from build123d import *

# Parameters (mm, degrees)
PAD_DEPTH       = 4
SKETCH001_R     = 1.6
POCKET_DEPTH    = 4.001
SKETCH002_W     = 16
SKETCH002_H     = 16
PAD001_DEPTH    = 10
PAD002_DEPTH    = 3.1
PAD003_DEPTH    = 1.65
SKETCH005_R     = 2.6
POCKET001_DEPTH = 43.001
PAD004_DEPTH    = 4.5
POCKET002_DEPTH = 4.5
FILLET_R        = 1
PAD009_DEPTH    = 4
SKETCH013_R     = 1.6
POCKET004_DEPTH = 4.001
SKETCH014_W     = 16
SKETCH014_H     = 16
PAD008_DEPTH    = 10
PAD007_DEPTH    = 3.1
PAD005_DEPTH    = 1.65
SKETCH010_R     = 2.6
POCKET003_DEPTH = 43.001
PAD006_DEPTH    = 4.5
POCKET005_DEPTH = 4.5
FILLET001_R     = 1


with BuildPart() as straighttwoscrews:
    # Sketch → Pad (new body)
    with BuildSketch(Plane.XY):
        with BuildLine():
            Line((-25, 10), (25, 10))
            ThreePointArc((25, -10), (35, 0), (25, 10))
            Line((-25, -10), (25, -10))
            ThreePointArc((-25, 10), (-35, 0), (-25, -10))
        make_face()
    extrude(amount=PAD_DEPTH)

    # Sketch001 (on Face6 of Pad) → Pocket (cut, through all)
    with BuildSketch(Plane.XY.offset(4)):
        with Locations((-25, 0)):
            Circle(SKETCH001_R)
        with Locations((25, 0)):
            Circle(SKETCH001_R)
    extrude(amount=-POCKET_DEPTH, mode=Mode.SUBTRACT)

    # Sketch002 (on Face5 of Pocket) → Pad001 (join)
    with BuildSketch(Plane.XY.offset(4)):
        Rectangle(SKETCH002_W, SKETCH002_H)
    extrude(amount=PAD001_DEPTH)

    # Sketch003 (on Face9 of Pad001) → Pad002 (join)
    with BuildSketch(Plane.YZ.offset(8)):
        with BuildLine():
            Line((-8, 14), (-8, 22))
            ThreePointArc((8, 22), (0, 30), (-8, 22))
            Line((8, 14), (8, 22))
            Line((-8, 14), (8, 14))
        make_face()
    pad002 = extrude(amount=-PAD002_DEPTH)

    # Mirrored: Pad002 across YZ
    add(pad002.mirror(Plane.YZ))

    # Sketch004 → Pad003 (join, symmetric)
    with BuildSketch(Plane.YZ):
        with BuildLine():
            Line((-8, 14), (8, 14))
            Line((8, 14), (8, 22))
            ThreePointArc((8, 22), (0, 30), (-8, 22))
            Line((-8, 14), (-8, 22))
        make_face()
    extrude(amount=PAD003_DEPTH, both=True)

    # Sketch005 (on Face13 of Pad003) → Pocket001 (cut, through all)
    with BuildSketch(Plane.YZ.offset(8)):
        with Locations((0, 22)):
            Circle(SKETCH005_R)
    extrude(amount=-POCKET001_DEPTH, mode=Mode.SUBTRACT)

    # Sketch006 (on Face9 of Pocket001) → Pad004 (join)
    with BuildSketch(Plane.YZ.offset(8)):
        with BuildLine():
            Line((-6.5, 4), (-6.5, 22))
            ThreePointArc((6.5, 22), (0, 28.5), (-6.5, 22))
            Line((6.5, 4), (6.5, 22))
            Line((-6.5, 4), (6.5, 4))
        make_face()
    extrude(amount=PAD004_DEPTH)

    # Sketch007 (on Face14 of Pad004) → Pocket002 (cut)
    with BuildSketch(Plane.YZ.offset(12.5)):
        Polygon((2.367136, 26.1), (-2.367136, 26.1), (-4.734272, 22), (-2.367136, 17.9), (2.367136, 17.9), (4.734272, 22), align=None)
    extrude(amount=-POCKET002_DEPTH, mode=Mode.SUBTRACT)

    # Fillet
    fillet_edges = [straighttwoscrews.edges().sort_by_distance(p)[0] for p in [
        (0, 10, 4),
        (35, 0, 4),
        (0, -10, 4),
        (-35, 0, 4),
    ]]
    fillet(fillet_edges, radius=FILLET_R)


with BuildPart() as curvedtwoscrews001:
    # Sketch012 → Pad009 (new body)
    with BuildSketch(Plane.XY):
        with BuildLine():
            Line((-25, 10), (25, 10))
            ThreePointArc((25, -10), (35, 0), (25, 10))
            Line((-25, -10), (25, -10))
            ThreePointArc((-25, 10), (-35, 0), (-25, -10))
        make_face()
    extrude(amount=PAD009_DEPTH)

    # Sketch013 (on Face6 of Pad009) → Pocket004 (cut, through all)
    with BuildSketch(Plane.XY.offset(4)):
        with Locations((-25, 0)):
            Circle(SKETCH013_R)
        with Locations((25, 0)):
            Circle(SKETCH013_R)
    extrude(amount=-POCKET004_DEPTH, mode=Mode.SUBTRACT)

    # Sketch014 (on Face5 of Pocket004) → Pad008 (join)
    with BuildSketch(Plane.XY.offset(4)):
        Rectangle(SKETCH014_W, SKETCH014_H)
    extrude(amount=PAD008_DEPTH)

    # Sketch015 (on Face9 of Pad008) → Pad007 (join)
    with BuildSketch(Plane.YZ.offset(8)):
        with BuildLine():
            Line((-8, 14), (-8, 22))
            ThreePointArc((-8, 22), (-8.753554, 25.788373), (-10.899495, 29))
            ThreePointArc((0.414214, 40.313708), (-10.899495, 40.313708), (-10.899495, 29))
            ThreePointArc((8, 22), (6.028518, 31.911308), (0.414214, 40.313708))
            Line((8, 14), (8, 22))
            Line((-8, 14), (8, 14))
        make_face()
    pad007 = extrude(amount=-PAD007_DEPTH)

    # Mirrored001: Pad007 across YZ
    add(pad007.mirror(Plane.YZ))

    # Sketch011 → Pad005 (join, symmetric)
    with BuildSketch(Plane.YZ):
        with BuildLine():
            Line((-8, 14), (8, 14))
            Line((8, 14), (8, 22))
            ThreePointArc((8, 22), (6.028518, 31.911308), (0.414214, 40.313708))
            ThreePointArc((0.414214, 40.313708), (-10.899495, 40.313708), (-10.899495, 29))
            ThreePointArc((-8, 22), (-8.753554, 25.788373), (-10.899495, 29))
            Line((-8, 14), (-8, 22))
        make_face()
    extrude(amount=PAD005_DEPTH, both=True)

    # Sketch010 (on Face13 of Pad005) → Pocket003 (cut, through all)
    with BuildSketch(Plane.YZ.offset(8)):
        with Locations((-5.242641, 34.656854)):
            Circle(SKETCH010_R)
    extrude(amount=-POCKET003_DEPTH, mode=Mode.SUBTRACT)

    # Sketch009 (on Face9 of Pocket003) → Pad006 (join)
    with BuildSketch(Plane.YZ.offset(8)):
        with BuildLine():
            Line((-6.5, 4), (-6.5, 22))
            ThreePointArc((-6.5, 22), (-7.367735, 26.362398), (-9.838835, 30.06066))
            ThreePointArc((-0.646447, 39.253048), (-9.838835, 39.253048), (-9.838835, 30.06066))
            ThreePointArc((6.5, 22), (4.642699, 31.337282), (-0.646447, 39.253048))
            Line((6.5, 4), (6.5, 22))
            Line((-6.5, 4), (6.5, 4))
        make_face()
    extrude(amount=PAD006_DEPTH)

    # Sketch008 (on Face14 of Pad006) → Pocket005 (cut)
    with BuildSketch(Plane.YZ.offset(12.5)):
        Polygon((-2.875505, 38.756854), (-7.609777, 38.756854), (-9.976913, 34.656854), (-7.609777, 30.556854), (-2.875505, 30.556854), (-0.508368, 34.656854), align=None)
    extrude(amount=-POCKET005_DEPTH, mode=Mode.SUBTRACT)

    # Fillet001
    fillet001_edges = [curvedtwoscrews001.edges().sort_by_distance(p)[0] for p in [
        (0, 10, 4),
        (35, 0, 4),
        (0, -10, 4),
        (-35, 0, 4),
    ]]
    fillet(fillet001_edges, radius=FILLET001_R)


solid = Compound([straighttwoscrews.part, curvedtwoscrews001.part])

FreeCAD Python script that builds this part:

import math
import FreeCAD as App
import Part
import Sketcher
from FreeCAD import Vector
Q = App.Units.Quantity


def edges_at(feature, points):
    """Names of the edges that pass closest to the given points."""
    edges = feature.Shape.Edges
    near = lambda p: min(range(len(edges)), key=lambda i: edges[i].distToShape(Part.Vertex(*p))[0])
    return sorted({f"Edge{near(p) + 1}" for p in points})

doc = App.newDocument("Part")
params = doc.addObject("Spreadsheet::Sheet", "Params")
for row, (alias, value) in enumerate([
    ("sketch1_radius", "10 mm"),
    ("sketch1_width", "50 mm"),
    ("pad1_length", "4 mm"),
    ("sketch2_diameter", "3.2 mm"),
    ("sketch3_width", "16 mm"),
    ("pad2_length", "10 mm"),
    ("sketch4_radius", "8 mm"),
    ("sketch4_height", "8 mm"),
    ("pad3_length", "3.1 mm"),
    ("sketch5_radius", "8 mm"),
    ("sketch5_height", "8 mm"),
    ("pad4_length", "3.3 mm"),
    ("sketch6_diameter", "5.2 mm"),
    ("sketch7_radius", "6.5 mm"),
    ("sketch7_height", "18 mm"),
    ("pad5_length", "4.5 mm"),
    ("pocket3_length", "4.5 mm"),
    ("fillet_radius", "1 mm"),
    ("sketch9_radius", "10 mm"),
    ("sketch9_width", "50 mm"),
    ("pad6_length", "4 mm"),
    ("sketch10_diameter", "3.2 mm"),
    ("sketch11_width", "16 mm"),
    ("pad7_length", "10 mm"),
    ("sketch12_radius", "8 mm"),
    ("sketch12_height", "8 mm"),
    ("pad8_length", "3.1 mm"),
    ("sketch13_radius", "8 mm"),
    ("sketch13_height", "8 mm"),
    ("pad9_length", "3.3 mm"),
    ("sketch14_diameter", "5.2 mm"),
    ("sketch15_radius", "6.5 mm"),
    ("sketch15_height", "18 mm"),
    ("pad10_length", "4.5 mm"),
    ("pocket6_length", "4.5 mm"),
    ("fillet2_radius", "1 mm"),
], start=1):
    params.set(f"A{row}", alias)
    params.set(f"B{row}", "=" + value)
    params.setAlias(f"B{row}", alias)

body = doc.addObject("PartDesign::Body", "Body")

# Sketch on XY plane
sketch1 = body.newObject("Sketcher::SketchObject", "Sketch")
sketch1.AttachmentSupport = (doc.getObject("XY_Plane"), [""])
sketch1.MapMode = "FlatFace"
sketch1.addGeometry([
    Part.LineSegment(Vector(25, 10, 0), Vector(-25, 10, 0)),
    Part.ArcOfCircle(Part.Circle(Vector(-25, 0, 0), Vector(0, 0, 1), 10), math.radians(90), math.radians(270)),
    Part.LineSegment(Vector(-25, -10, 0), Vector(25, -10, 0)),
    Part.ArcOfCircle(Part.Circle(Vector(25, 0, 0), Vector(0, 0, 1), 10), math.radians(-90), math.radians(90)),
], False)
sketch1.addConstraint([
    Sketcher.Constraint("Tangent", 0, 2, 1, 1),
    Sketcher.Constraint("Tangent", 1, 2, 2, 1),
    Sketcher.Constraint("Tangent", 2, 2, 3, 1),
    Sketcher.Constraint("Tangent", 3, 2, 0, 1),
    Sketcher.Constraint("Horizontal", 0),
    Sketcher.Constraint("Horizontal", 2),
    Sketcher.Constraint("Symmetric", 1, 3, 3, 3, -1, 1),
    Sketcher.Constraint("Radius", 1, Q("10 mm")),
    Sketcher.Constraint("DistanceX", 0, 2, 0, 1, Q("50 mm")),
])
sketch1.setExpression("Constraints[7]", "Params.sketch1_radius")
sketch1.setExpression("Constraints[8]", "Params.sketch1_width")
pad1 = body.newObject("PartDesign::Pad", "Pad")
pad1.Profile = sketch1
pad1.setExpression("Length", "Params.pad1_length")

# Sketch on XY plane
sketch2 = body.newObject("Sketcher::SketchObject", "Sketch001")
sketch2.AttachmentSupport = (doc.getObject("XY_Plane"), [""])
sketch2.MapMode = "FlatFace"
sketch2.AttachmentOffset = App.Placement(Vector(0, 0, 4), App.Rotation())
sketch2.addGeometry([
    Part.Circle(Vector(-25, 0, 0), Vector(0, 0, 1), 1.6),
    Part.Circle(Vector(25, 0, 0), Vector(0, 0, 1), 1.6),
], False)
sketch2.addConstraint([
    Sketcher.Constraint("Equal", 0, 1),
    Sketcher.Constraint("Symmetric", 0, 3, 1, 3, -1, 1),
    Sketcher.Constraint("PointOnObject", 0, 3, -1),
    Sketcher.Constraint("Diameter", 0, Q("3.2 mm")),
    Sketcher.Constraint("DistanceX", 0, 3, -1, 1, Q("25 mm")),
])
sketch2.setExpression("Constraints[3]", "Params.sketch2_diameter")
pocket1 = body.newObject("PartDesign::Pocket", "Pocket")
pocket1.Profile = sketch2
pocket1.Type = "ThroughAll"

# Sketch on XY plane
sketch3 = body.newObject("Sketcher::SketchObject", "Sketch002")
sketch3.AttachmentSupport = (doc.getObject("XY_Plane"), [""])
sketch3.MapMode = "FlatFace"
sketch3.AttachmentOffset = App.Placement(Vector(0, 0, 4), App.Rotation())
sketch3.addGeometry([
    Part.LineSegment(Vector(-8, 8, 0), Vector(-8, -8, 0)),
    Part.LineSegment(Vector(-8, -8, 0), Vector(8, -8, 0)),
    Part.LineSegment(Vector(8, -8, 0), Vector(8, 8, 0)),
    Part.LineSegment(Vector(8, 8, 0), Vector(-8, 8, 0)),
], False)
sketch3.addConstraint([
    Sketcher.Constraint("Coincident", 0, 2, 1, 1),
    Sketcher.Constraint("Coincident", 1, 2, 2, 1),
    Sketcher.Constraint("Coincident", 2, 2, 3, 1),
    Sketcher.Constraint("Coincident", 3, 2, 0, 1),
    Sketcher.Constraint("Vertical", 0),
    Sketcher.Constraint("Horizontal", 1),
    Sketcher.Constraint("Vertical", 2),
    Sketcher.Constraint("Horizontal", 3),
    Sketcher.Constraint("Symmetric", 0, 2, 2, 2, -1, 1),
    Sketcher.Constraint("Equal", 3, 0),
    Sketcher.Constraint("DistanceX", 1, 1, 1, 2, Q("16 mm")),
])
sketch3.setExpression("Constraints[10]", "Params.sketch3_width")
pad2 = body.newObject("PartDesign::Pad", "Pad001")
pad2.Profile = sketch3
pad2.setExpression("Length", "Params.pad2_length")

# Sketch on YZ plane
sketch4 = body.newObject("Sketcher::SketchObject", "Sketch003")
sketch4.AttachmentSupport = (doc.getObject("YZ_Plane"), [""])
sketch4.MapMode = "FlatFace"
sketch4.AttachmentOffset = App.Placement(Vector(0, 0, 8), App.Rotation())
sketch4.addGeometry([
    Part.LineSegment(Vector(-8, 22, 0), Vector(-8, 14, 0)),
    Part.LineSegment(Vector(-8, 14, 0), Vector(8, 14, 0)),
    Part.LineSegment(Vector(8, 14, 0), Vector(8, 22, 0)),
    Part.ArcOfCircle(Part.Circle(Vector(0, 22, 0), Vector(0, 0, 1), 8), math.radians(0), math.radians(180)),
], False)
sketch4.addConstraint([
    Sketcher.Constraint("Coincident", 0, 2, 1, 1),
    Sketcher.Constraint("Coincident", 1, 2, 2, 1),
    Sketcher.Constraint("Tangent", 2, 2, 3, 1),
    Sketcher.Constraint("Tangent", 3, 2, 0, 1),
    Sketcher.Constraint("Vertical", 0),
    Sketcher.Constraint("Horizontal", 1),
    Sketcher.Constraint("Vertical", 2),
    Sketcher.Constraint("PointOnObject", 3, 3, -2),
    Sketcher.Constraint("Radius", 3, Q("8 mm")),
    Sketcher.Constraint("DistanceY", 0, 2, 0, 1, Q("8 mm")),
    Sketcher.Constraint("DistanceY", -1, 1, 3, 3, Q("22 mm")),
])
sketch4.setExpression("Constraints[8]", "Params.sketch4_radius")
sketch4.setExpression("Constraints[9]", "Params.sketch4_height")
pad3 = body.newObject("PartDesign::Pad", "Pad002")
pad3.Profile = sketch4
pad3.setExpression("Length", "Params.pad3_length")
pad3.Reversed = True
doc.recompute()

mirrored = body.newObject("PartDesign::Mirrored", "Mirrored")
mirrored.Originals = [pad3]
mirrored.MirrorPlane = (doc.getObject("YZ_Plane"), [""])
body.Tip = mirrored

# Sketch on YZ plane
sketch5 = body.newObject("Sketcher::SketchObject", "Sketch004")
sketch5.AttachmentSupport = (doc.getObject("YZ_Plane"), [""])
sketch5.MapMode = "FlatFace"
sketch5.addGeometry([
    Part.LineSegment(Vector(-8, 14, 0), Vector(8, 14, 0)),
    Part.LineSegment(Vector(8, 14, 0), Vector(8, 22, 0)),
    Part.ArcOfCircle(Part.Circle(Vector(0, 22, 0), Vector(0, 0, 1), 8), math.radians(0), math.radians(180)),
    Part.LineSegment(Vector(-8, 22, 0), Vector(-8, 14, 0)),
], False)
sketch5.addConstraint([
    Sketcher.Constraint("Coincident", 0, 2, 1, 1),
    Sketcher.Constraint("Tangent", 1, 2, 2, 1),
    Sketcher.Constraint("Tangent", 2, 2, 3, 1),
    Sketcher.Constraint("Coincident", 3, 2, 0, 1),
    Sketcher.Constraint("Horizontal", 0),
    Sketcher.Constraint("Vertical", 1),
    Sketcher.Constraint("Vertical", 3),
    Sketcher.Constraint("PointOnObject", 2, 3, -2),
    Sketcher.Constraint("Radius", 2, Q("8 mm")),
    Sketcher.Constraint("DistanceY", 1, 1, 1, 2, Q("8 mm")),
    Sketcher.Constraint("DistanceY", -1, 1, 2, 3, Q("22 mm")),
])
sketch5.setExpression("Constraints[8]", "Params.sketch5_radius")
sketch5.setExpression("Constraints[9]", "Params.sketch5_height")
pad4 = body.newObject("PartDesign::Pad", "Pad003")
pad4.Profile = sketch5
pad4.setExpression("Length", "Params.pad4_length")
pad4.Midplane = True

# Sketch on YZ plane
sketch6 = body.newObject("Sketcher::SketchObject", "Sketch005")
sketch6.AttachmentSupport = (doc.getObject("YZ_Plane"), [""])
sketch6.MapMode = "FlatFace"
sketch6.AttachmentOffset = App.Placement(Vector(0, 0, 8), App.Rotation())
sketch6.addGeometry(Part.Circle(Vector(0, 22, 0), Vector(0, 0, 1), 2.6), False)
sketch6.addConstraint([
    Sketcher.Constraint("PointOnObject", 0, 3, -2),
    Sketcher.Constraint("Diameter", 0, Q("5.2 mm")),
    Sketcher.Constraint("DistanceY", -1, 1, 0, 3, Q("22 mm")),
])
sketch6.setExpression("Constraints[1]", "Params.sketch6_diameter")
pocket2 = body.newObject("PartDesign::Pocket", "Pocket001")
pocket2.Profile = sketch6
pocket2.Type = "ThroughAll"

# Sketch on YZ plane
sketch7 = body.newObject("Sketcher::SketchObject", "Sketch006")
sketch7.AttachmentSupport = (doc.getObject("YZ_Plane"), [""])
sketch7.MapMode = "FlatFace"
sketch7.AttachmentOffset = App.Placement(Vector(0, 0, 8), App.Rotation())
sketch7.addGeometry([
    Part.LineSegment(Vector(-6, 22, 0), Vector(-6, 4, 0)),
    Part.LineSegment(Vector(-6, 4, 0), Vector(6, 4, 0)),
    Part.LineSegment(Vector(6, 4, 0), Vector(6, 22, 0)),
    Part.ArcOfCircle(Part.Circle(Vector(0, 22, 0), Vector(0, 0, 1), 6), math.radians(0), math.radians(180)),
], False)
sketch7.addConstraint([
    Sketcher.Constraint("Coincident", 0, 2, 1, 1),
    Sketcher.Constraint("Coincident", 1, 2, 2, 1),
    Sketcher.Constraint("Tangent", 2, 2, 3, 1),
    Sketcher.Constraint("Tangent", 3, 2, 0, 1),
    Sketcher.Constraint("Vertical", 0),
    Sketcher.Constraint("Horizontal", 1),
    Sketcher.Constraint("Vertical", 2),
    Sketcher.Constraint("PointOnObject", 3, 3, -2),
    Sketcher.Constraint("Radius", 3, Q("6.5 mm")),
    Sketcher.Constraint("DistanceY", 0, 2, 0, 1, Q("18 mm")),
    Sketcher.Constraint("DistanceY", -1, 1, 3, 3, Q("22 mm")),
])
sketch7.setExpression("Constraints[8]", "Params.sketch7_radius")
sketch7.setExpression("Constraints[9]", "Params.sketch7_height")
pad5 = body.newObject("PartDesign::Pad", "Pad004")
pad5.Profile = sketch7
pad5.setExpression("Length", "Params.pad5_length")

# Sketch on YZ plane
sketch8 = body.newObject("Sketcher::SketchObject", "Sketch007")
sketch8.AttachmentSupport = (doc.getObject("YZ_Plane"), [""])
sketch8.MapMode = "FlatFace"
sketch8.AttachmentOffset = App.Placement(Vector(0, 0, 12.5), App.Rotation())
sketch8.addGeometry([
    Part.LineSegment(Vector(2.4, 26.1, 0), Vector(-2.4, 26.1, 0)),  # 0
    Part.LineSegment(Vector(-2.4, 26.1, 0), Vector(-4.7, 22, 0)),  # 1
    Part.LineSegment(Vector(-4.7, 22, 0), Vector(-2.4, 17.9, 0)),  # 2
    Part.LineSegment(Vector(-2.4, 17.9, 0), Vector(2.4, 17.9, 0)),  # 3
    Part.LineSegment(Vector(2.4, 17.9, 0), Vector(4.7, 22, 0)),  # 4
    Part.LineSegment(Vector(4.7, 22, 0), Vector(2.4, 26.1, 0)),  # 5
], False)
sketch8.addConstraint([
    Sketcher.Constraint("Coincident", 0, 2, 1, 1),
    Sketcher.Constraint("Coincident", 1, 2, 2, 1),
    Sketcher.Constraint("Coincident", 2, 2, 3, 1),
    Sketcher.Constraint("Coincident", 3, 2, 4, 1),
    Sketcher.Constraint("Coincident", 4, 2, 5, 1),
    Sketcher.Constraint("Coincident", 5, 2, 0, 1),
    Sketcher.Constraint("Horizontal", 0),
    Sketcher.Constraint("Horizontal", 3),
    Sketcher.Constraint("Symmetric", 1, 2, 4, 2, -2),
    Sketcher.Constraint("Parallel", 1, 4),
    Sketcher.Constraint("Parallel", 2, 5),
    Sketcher.Constraint("Vertical", 0, 2, 2, 2),
    Sketcher.Constraint("Vertical", 3, 2, 5, 2),
    Sketcher.Constraint("Angle", 1, Q("-119.999999 deg")),
    Sketcher.Constraint("DistanceY", -1, 1, 1, 2, Q("22 mm")),
    Sketcher.Constraint("DistanceY", -1, 1, 0, 2, Q("26.1 mm")),
    Sketcher.Constraint("DistanceX", 0, 2, 0, 1, Q("4.734272 mm")),
])
pocket3 = body.newObject("PartDesign::Pocket", "Pocket002")
pocket3.Profile = sketch8
pocket3.setExpression("Length", "Params.pocket3_length")
doc.recompute()

fillet = body.newObject("PartDesign::Fillet", "Fillet")
fillet.Base = (pocket3, edges_at(pocket3, [
    (0, 10, 4),
    (35, 0, 4),
    (0, -10, 4),
    (-35, 0, 4),
]))
fillet.setExpression("Radius", "Params.fillet_radius")
body2 = doc.addObject("PartDesign::Body", "Body001")

# Sketch on XY plane
sketch9 = body2.newObject("Sketcher::SketchObject", "Sketch008")
sketch9.AttachmentSupport = (doc.getObject("XY_Plane001"), [""])
sketch9.MapMode = "FlatFace"
sketch9.addGeometry([
    Part.LineSegment(Vector(25, 10, 0), Vector(-25, 10, 0)),
    Part.ArcOfCircle(Part.Circle(Vector(-25, 0, 0), Vector(0, 0, 1), 10), math.radians(90), math.radians(270)),
    Part.LineSegment(Vector(-25, -10, 0), Vector(25, -10, 0)),
    Part.ArcOfCircle(Part.Circle(Vector(25, 0, 0), Vector(0, 0, 1), 10), math.radians(-90), math.radians(90)),
], False)
sketch9.addConstraint([
    Sketcher.Constraint("Tangent", 0, 2, 1, 1),
    Sketcher.Constraint("Tangent", 1, 2, 2, 1),
    Sketcher.Constraint("Tangent", 2, 2, 3, 1),
    Sketcher.Constraint("Tangent", 3, 2, 0, 1),
    Sketcher.Constraint("Horizontal", 0),
    Sketcher.Constraint("Horizontal", 2),
    Sketcher.Constraint("Symmetric", 1, 3, 3, 3, -1, 1),
    Sketcher.Constraint("Radius", 1, Q("10 mm")),
    Sketcher.Constraint("DistanceX", 0, 2, 0, 1, Q("50 mm")),
])
sketch9.setExpression("Constraints[7]", "Params.sketch9_radius")
sketch9.setExpression("Constraints[8]", "Params.sketch9_width")
pad6 = body2.newObject("PartDesign::Pad", "Pad005")
pad6.Profile = sketch9
pad6.setExpression("Length", "Params.pad6_length")

# Sketch on XY plane
sketch10 = body2.newObject("Sketcher::SketchObject", "Sketch009")
sketch10.AttachmentSupport = (doc.getObject("XY_Plane001"), [""])
sketch10.MapMode = "FlatFace"
sketch10.AttachmentOffset = App.Placement(Vector(0, 0, 4), App.Rotation())
sketch10.addGeometry([
    Part.Circle(Vector(-25, 0, 0), Vector(0, 0, 1), 1.6),
    Part.Circle(Vector(25, 0, 0), Vector(0, 0, 1), 1.6),
], False)
sketch10.addConstraint([
    Sketcher.Constraint("Equal", 0, 1),
    Sketcher.Constraint("Symmetric", 0, 3, 1, 3, -1, 1),
    Sketcher.Constraint("PointOnObject", 0, 3, -1),
    Sketcher.Constraint("Diameter", 0, Q("3.2 mm")),
    Sketcher.Constraint("DistanceX", 0, 3, -1, 1, Q("25 mm")),
])
sketch10.setExpression("Constraints[3]", "Params.sketch10_diameter")
pocket4 = body2.newObject("PartDesign::Pocket", "Pocket003")
pocket4.Profile = sketch10
pocket4.Type = "ThroughAll"

# Sketch on XY plane
sketch11 = body2.newObject("Sketcher::SketchObject", "Sketch010")
sketch11.AttachmentSupport = (doc.getObject("XY_Plane001"), [""])
sketch11.MapMode = "FlatFace"
sketch11.AttachmentOffset = App.Placement(Vector(0, 0, 4), App.Rotation())
sketch11.addGeometry([
    Part.LineSegment(Vector(-8, 8, 0), Vector(-8, -8, 0)),
    Part.LineSegment(Vector(-8, -8, 0), Vector(8, -8, 0)),
    Part.LineSegment(Vector(8, -8, 0), Vector(8, 8, 0)),
    Part.LineSegment(Vector(8, 8, 0), Vector(-8, 8, 0)),
], False)
sketch11.addConstraint([
    Sketcher.Constraint("Coincident", 0, 2, 1, 1),
    Sketcher.Constraint("Coincident", 1, 2, 2, 1),
    Sketcher.Constraint("Coincident", 2, 2, 3, 1),
    Sketcher.Constraint("Coincident", 3, 2, 0, 1),
    Sketcher.Constraint("Vertical", 0),
    Sketcher.Constraint("Horizontal", 1),
    Sketcher.Constraint("Vertical", 2),
    Sketcher.Constraint("Horizontal", 3),
    Sketcher.Constraint("Symmetric", 0, 2, 2, 2, -1, 1),
    Sketcher.Constraint("Equal", 3, 0),
    Sketcher.Constraint("DistanceX", 1, 1, 1, 2, Q("16 mm")),
])
sketch11.setExpression("Constraints[10]", "Params.sketch11_width")
pad7 = body2.newObject("PartDesign::Pad", "Pad006")
pad7.Profile = sketch11
pad7.setExpression("Length", "Params.pad7_length")

# Sketch on YZ plane
sketch12 = body2.newObject("Sketcher::SketchObject", "Sketch011")
sketch12.AttachmentSupport = (doc.getObject("YZ_Plane001"), [""])
sketch12.MapMode = "FlatFace"
sketch12.AttachmentOffset = App.Placement(Vector(0, 0, 8), App.Rotation())
sketch12.addGeometry([
    Part.LineSegment(Vector(-8, 22, 0), Vector(-8, 14, 0)),  # 0
    Part.LineSegment(Vector(-8, 14, 0), Vector(8, 14, 0)),  # 1
    Part.LineSegment(Vector(8, 14, 0), Vector(8, 22, 0)),  # 2
    Part.ArcOfCircle(Part.Circle(Vector(-18, 22, 0), Vector(0, 0, 1), 26), math.radians(0), math.radians(45)),  # 3
    Part.ArcOfCircle(Part.Circle(Vector(-5, 35, 0), Vector(0, 0, 1), 8), math.radians(45), math.radians(225)),  # 4
    Part.ArcOfCircle(Part.Circle(Vector(-18, 22, 0), Vector(0, 0, 1), 10), math.radians(0), math.radians(45)),  # 5
], False)
sketch12.addConstraint([
    Sketcher.Constraint("Coincident", 0, 2, 1, 1),
    Sketcher.Constraint("Coincident", 1, 2, 2, 1),
    Sketcher.Constraint("Tangent", 2, 2, 3, 1),
    Sketcher.Constraint("Tangent", 3, 2, 4, 1),
    Sketcher.Constraint("Tangent", 4, 2, 5, 2),
    Sketcher.Constraint("Tangent", 5, 1, 0, 1),
    Sketcher.Constraint("Vertical", 0),
    Sketcher.Constraint("Horizontal", 1),
    Sketcher.Constraint("Vertical", 2),
    Sketcher.Constraint("Coincident", 5, 3, 3, 3),
    Sketcher.Constraint("Radius", 4, Q("8 mm")),
    Sketcher.Constraint("DistanceY", 0, 2, 0, 1, Q("8 mm")),
    Sketcher.Constraint("DistanceY", -1, 1, 3, 3, Q("21.999999 mm")),
    Sketcher.Constraint("DistanceX", 0, 2, -1, 1, Q("8 mm")),
    Sketcher.Constraint("DistanceY", -1, 1, 4, 2, Q("29 mm")),
    Sketcher.Constraint("DistanceX", 3, 3, 4, 2, Q("7.000002 mm")),
])
sketch12.setExpression("Constraints[10]", "Params.sketch12_radius")
sketch12.setExpression("Constraints[11]", "Params.sketch12_height")
pad8 = body2.newObject("PartDesign::Pad", "Pad007")
pad8.Profile = sketch12
pad8.setExpression("Length", "Params.pad8_length")
pad8.Reversed = True
doc.recompute()

mirrored2 = body2.newObject("PartDesign::Mirrored", "Mirrored001")
mirrored2.Originals = [pad8]
mirrored2.MirrorPlane = (doc.getObject("YZ_Plane001"), [""])
body2.Tip = mirrored2

# Sketch on YZ plane
sketch13 = body2.newObject("Sketcher::SketchObject", "Sketch012")
sketch13.AttachmentSupport = (doc.getObject("YZ_Plane001"), [""])
sketch13.MapMode = "FlatFace"
sketch13.addGeometry([
    Part.LineSegment(Vector(-8, 14, 0), Vector(8, 14, 0)),  # 0
    Part.LineSegment(Vector(8, 14, 0), Vector(8, 22, 0)),  # 1
    Part.ArcOfCircle(Part.Circle(Vector(-18, 22, 0), Vector(0, 0, 1), 26), math.radians(0), math.radians(45)),  # 2
    Part.ArcOfCircle(Part.Circle(Vector(-5, 35, 0), Vector(0, 0, 1), 8), math.radians(45), math.radians(225)),  # 3
    Part.ArcOfCircle(Part.Circle(Vector(-18, 22, 0), Vector(0, 0, 1), 10), math.radians(0), math.radians(45)),  # 4
    Part.LineSegment(Vector(-8, 22, 0), Vector(-8, 14, 0)),  # 5
], False)
sketch13.addConstraint([
    Sketcher.Constraint("Coincident", 0, 2, 1, 1),
    Sketcher.Constraint("Tangent", 1, 2, 2, 1),
    Sketcher.Constraint("Tangent", 2, 2, 3, 1),
    Sketcher.Constraint("Tangent", 3, 2, 4, 2),
    Sketcher.Constraint("Tangent", 4, 1, 5, 1),
    Sketcher.Constraint("Coincident", 5, 2, 0, 1),
    Sketcher.Constraint("Horizontal", 0),
    Sketcher.Constraint("Vertical", 1),
    Sketcher.Constraint("Vertical", 5),
    Sketcher.Constraint("Coincident", 4, 3, 2, 3),
    Sketcher.Constraint("Radius", 3, Q("8 mm")),
    Sketcher.Constraint("DistanceY", 1, 1, 1, 2, Q("8 mm")),
    Sketcher.Constraint("DistanceY", -1, 1, 2, 3, Q("21.999999 mm")),
    Sketcher.Constraint("DistanceX", -1, 1, 0, 2, Q("8 mm")),
    Sketcher.Constraint("DistanceY", -1, 1, 3, 2, Q("29 mm")),
    Sketcher.Constraint("DistanceX", 2, 3, 3, 2, Q("7.000002 mm")),
])
sketch13.setExpression("Constraints[10]", "Params.sketch13_radius")
sketch13.setExpression("Constraints[11]", "Params.sketch13_height")
pad9 = body2.newObject("PartDesign::Pad", "Pad008")
pad9.Profile = sketch13
pad9.setExpression("Length", "Params.pad9_length")
pad9.Midplane = True

# Sketch on YZ plane
sketch14 = body2.newObject("Sketcher::SketchObject", "Sketch013")
sketch14.AttachmentSupport = (doc.getObject("YZ_Plane001"), [""])
sketch14.MapMode = "FlatFace"
sketch14.AttachmentOffset = App.Placement(Vector(0, 0, 8), App.Rotation())
sketch14.addGeometry(Part.Circle(Vector(-5.2, 34.7, 0), Vector(0, 0, 1), 2.6), False)
sketch14.addConstraint([
    Sketcher.Constraint("Diameter", 0, Q("5.2 mm")),
    Sketcher.Constraint("DistanceX", 0, 3, -1, 1, Q("5.242641 mm")),
    Sketcher.Constraint("DistanceY", -1, 1, 0, 3, Q("34.656854 mm")),
])
sketch14.setExpression("Constraints[0]", "Params.sketch14_diameter")
pocket5 = body2.newObject("PartDesign::Pocket", "Pocket004")
pocket5.Profile = sketch14
pocket5.Type = "ThroughAll"

# Sketch on YZ plane
sketch15 = body2.newObject("Sketcher::SketchObject", "Sketch014")
sketch15.AttachmentSupport = (doc.getObject("YZ_Plane001"), [""])
sketch15.MapMode = "FlatFace"
sketch15.AttachmentOffset = App.Placement(Vector(0, 0, 8), App.Rotation())
sketch15.addGeometry([
    Part.LineSegment(Vector(-6, 22, 0), Vector(-6, 4, 0)),  # 0
    Part.LineSegment(Vector(-6, 4, 0), Vector(6, 4, 0)),  # 1
    Part.LineSegment(Vector(6, 4, 0), Vector(6, 22, 0)),  # 2
    Part.ArcOfCircle(Part.Circle(Vector(-18, 22, 0), Vector(0, 0, 1), 24), math.radians(0), math.radians(45)),  # 3
    Part.ArcOfCircle(Part.Circle(Vector(-5, 35, 0), Vector(0, 0, 1), 6), math.radians(45), math.radians(225)),  # 4
    Part.ArcOfCircle(Part.Circle(Vector(-18, 22, 0), Vector(0, 0, 1), 11), math.radians(0), math.radians(45)),  # 5
], False)
sketch15.addConstraint([
    Sketcher.Constraint("Coincident", 0, 2, 1, 1),
    Sketcher.Constraint("Coincident", 1, 2, 2, 1),
    Sketcher.Constraint("Tangent", 2, 2, 3, 1),
    Sketcher.Constraint("Tangent", 3, 2, 4, 1),
    Sketcher.Constraint("Tangent", 4, 2, 5, 2),
    Sketcher.Constraint("Tangent", 5, 1, 0, 1),
    Sketcher.Constraint("Vertical", 0),
    Sketcher.Constraint("Horizontal", 1),
    Sketcher.Constraint("Vertical", 2),
    Sketcher.Constraint("Coincident", 5, 3, 3, 3),
    Sketcher.Constraint("Radius", 4, Q("6.5 mm")),
    Sketcher.Constraint("DistanceY", 0, 2, 0, 1, Q("18 mm")),
    Sketcher.Constraint("DistanceY", -1, 1, 3, 3, Q("22 mm")),
    Sketcher.Constraint("DistanceX", 0, 2, -1, 1, Q("6.5 mm")),
    Sketcher.Constraint("Radius", 3, Q("24.399494 mm")),
    Sketcher.Constraint("DistanceX", 4, 3, -1, 1, Q("5.242641 mm")),
])
sketch15.setExpression("Constraints[10]", "Params.sketch15_radius")
sketch15.setExpression("Constraints[11]", "Params.sketch15_height")
pad10 = body2.newObject("PartDesign::Pad", "Pad009")
pad10.Profile = sketch15
pad10.setExpression("Length", "Params.pad10_length")

# Sketch on YZ plane
sketch16 = body2.newObject("Sketcher::SketchObject", "Sketch015")
sketch16.AttachmentSupport = (doc.getObject("YZ_Plane001"), [""])
sketch16.MapMode = "FlatFace"
sketch16.AttachmentOffset = App.Placement(Vector(0, 0, 12.5), App.Rotation())
sketch16.addGeometry([
    Part.LineSegment(Vector(-2.9, 38.8, 0), Vector(-7.6, 38.8, 0)),  # 0
    Part.LineSegment(Vector(-7.6, 38.8, 0), Vector(-10, 34.7, 0)),  # 1
    Part.LineSegment(Vector(-10, 34.7, 0), Vector(-7.6, 30.6, 0)),  # 2
    Part.LineSegment(Vector(-7.6, 30.6, 0), Vector(-2.9, 30.6, 0)),  # 3
    Part.LineSegment(Vector(-2.9, 30.6, 0), Vector(-0.5, 34.7, 0)),  # 4
    Part.LineSegment(Vector(-0.5, 34.7, 0), Vector(-2.9, 38.8, 0)),  # 5
], False)
sketch16.addConstraint([
    Sketcher.Constraint("Coincident", 0, 2, 1, 1),
    Sketcher.Constraint("Coincident", 1, 2, 2, 1),
    Sketcher.Constraint("Coincident", 2, 2, 3, 1),
    Sketcher.Constraint("Coincident", 3, 2, 4, 1),
    Sketcher.Constraint("Coincident", 4, 2, 5, 1),
    Sketcher.Constraint("Coincident", 5, 2, 0, 1),
    Sketcher.Constraint("Horizontal", 0),
    Sketcher.Constraint("Horizontal", 3),
    Sketcher.Constraint("Parallel", 1, 4),
    Sketcher.Constraint("Parallel", 2, 5),
    Sketcher.Constraint("Horizontal", 1, 2, 4, 2),
    Sketcher.Constraint("Vertical", 0, 2, 2, 2),
    Sketcher.Constraint("Vertical", 3, 2, 5, 2),
    Sketcher.Constraint("Angle", 1, Q("-119.999999 deg")),
    Sketcher.Constraint("DistanceY", 1, 2, 0, 2, Q("4.1 mm")),
    Sketcher.Constraint("DistanceX", 0, 2, 0, 1, Q("4.734272 mm")),
    Sketcher.Constraint("DistanceX", 4, 2, -1, 1, Q("0.508368 mm")),
    Sketcher.Constraint("DistanceY", -1, 1, 0, 2, Q("38.756854 mm")),
])
pocket6 = body2.newObject("PartDesign::Pocket", "Pocket005")
pocket6.Profile = sketch16
pocket6.setExpression("Length", "Params.pocket6_length")
doc.recompute()

fillet2 = body2.newObject("PartDesign::Fillet", "Fillet001")
fillet2.Base = (pocket6, edges_at(pocket6, [
    (0, 10, 4),
    (35, 0, 4),
    (0, -10, 4),
    (-35, 0, 4),
]))
fillet2.setExpression("Radius", "Params.fillet2_radius")

doc.recompute()
